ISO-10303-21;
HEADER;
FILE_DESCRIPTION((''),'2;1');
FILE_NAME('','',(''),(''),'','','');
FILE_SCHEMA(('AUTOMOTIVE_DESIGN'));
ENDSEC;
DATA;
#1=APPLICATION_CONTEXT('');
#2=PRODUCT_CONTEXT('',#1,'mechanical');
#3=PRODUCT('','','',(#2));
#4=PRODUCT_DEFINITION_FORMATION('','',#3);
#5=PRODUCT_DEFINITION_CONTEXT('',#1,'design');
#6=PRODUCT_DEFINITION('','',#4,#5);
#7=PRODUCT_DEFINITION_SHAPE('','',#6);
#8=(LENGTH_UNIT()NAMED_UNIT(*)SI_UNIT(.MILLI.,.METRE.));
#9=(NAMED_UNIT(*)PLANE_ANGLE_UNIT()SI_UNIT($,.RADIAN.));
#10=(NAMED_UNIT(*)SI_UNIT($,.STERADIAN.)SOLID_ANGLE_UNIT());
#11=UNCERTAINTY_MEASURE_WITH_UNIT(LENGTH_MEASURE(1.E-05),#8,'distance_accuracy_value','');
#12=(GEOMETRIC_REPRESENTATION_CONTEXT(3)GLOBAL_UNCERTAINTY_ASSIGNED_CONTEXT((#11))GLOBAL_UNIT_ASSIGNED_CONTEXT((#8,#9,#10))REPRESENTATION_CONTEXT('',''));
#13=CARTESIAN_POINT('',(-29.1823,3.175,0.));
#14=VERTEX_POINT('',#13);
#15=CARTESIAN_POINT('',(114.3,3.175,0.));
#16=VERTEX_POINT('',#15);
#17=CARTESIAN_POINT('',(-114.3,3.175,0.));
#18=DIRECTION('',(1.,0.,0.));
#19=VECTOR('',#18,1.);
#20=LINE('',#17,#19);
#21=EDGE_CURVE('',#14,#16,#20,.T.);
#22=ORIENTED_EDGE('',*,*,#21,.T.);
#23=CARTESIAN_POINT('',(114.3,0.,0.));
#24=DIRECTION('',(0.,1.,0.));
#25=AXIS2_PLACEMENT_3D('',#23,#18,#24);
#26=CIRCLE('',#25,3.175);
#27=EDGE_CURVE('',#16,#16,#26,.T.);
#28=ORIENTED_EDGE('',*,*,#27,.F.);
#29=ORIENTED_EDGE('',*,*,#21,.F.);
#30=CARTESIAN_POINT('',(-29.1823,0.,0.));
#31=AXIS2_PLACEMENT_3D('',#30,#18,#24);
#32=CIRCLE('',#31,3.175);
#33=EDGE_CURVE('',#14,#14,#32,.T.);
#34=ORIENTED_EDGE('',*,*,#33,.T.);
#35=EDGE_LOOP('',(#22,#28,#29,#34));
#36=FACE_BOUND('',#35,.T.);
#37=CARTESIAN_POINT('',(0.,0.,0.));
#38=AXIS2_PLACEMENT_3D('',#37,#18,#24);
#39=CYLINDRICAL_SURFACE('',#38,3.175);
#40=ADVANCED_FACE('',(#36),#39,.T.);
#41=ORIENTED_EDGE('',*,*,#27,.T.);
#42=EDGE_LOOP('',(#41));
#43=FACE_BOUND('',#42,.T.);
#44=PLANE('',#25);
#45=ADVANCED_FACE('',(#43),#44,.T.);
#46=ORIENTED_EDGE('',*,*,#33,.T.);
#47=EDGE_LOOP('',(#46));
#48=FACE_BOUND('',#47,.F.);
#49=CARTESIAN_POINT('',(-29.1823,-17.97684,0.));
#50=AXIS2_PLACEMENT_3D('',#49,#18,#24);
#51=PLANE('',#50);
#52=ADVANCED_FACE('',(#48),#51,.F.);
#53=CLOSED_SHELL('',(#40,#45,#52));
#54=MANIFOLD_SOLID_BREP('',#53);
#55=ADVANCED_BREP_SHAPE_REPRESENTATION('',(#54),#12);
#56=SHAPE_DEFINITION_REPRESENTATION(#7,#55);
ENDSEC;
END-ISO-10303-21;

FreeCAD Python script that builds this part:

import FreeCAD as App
import Part
import Sketcher
Q = App.Units.Quantity

doc = App.newDocument("Part")
body = doc.addObject("PartDesign::Body", "Body")

# Sketch on YZ plane
sketch1 = doc.addObject("Sketcher::SketchObject", "Sketch")
body.addObject(sketch1)
sketch1.AttachmentSupport = (doc.YZ_Plane, [""])
sketch1.MapMode = "FlatFace"
sketch1.addGeometry(Part.Circle(App.Vector(0, 0, 0), App.Vector(0, 0, 1), 3.2), False)
sketch1.addConstraint([
    Sketcher.Constraint("Coincident", 0, 3, -1, 1),
    Sketcher.Constraint("Diameter", 0, Q("0.25 in")),
])
pad1 = doc.addObject("PartDesign::Pad", "Pad")
body.addObject(pad1)
pad1.Profile = sketch1
pad1.Length = Q("9 in")
pad1.Midplane = True

# Sketch on XY plane
sketch2 = doc.addObject("Sketcher::SketchObject", "Sketch001")
body.addObject(sketch2)
sketch2.AttachmentSupport = (doc.XY_Plane, [""])
sketch2.MapMode = "FlatFace"
sketch2.addGeometry([
    Part.LineSegment(App.Vector(-121, 23, 0), App.Vector(-121, -18, 0)),
    Part.LineSegment(App.Vector(-121, -18, 0), App.Vector(-29, -18, 0)),
    Part.LineSegment(App.Vector(-29, -18, 0), App.Vector(-29, 23, 0)),
    Part.LineSegment(App.Vector(-29, 23, 0), App.Vector(-121, 23, 0)),
], False)
sketch2.addConstraint([
    Sketcher.Constraint("Coincident", 0, 2, 1, 1),
    Sketcher.Constraint("Coincident", 1, 2, 2, 1),
    Sketcher.Constraint("Coincident", 2, 2, 3, 1),
    Sketcher.Constraint("Coincident", 3, 2, 0, 1),
    Sketcher.Constraint("Vertical", 0),
    Sketcher.Constraint("Horizontal", 1),
    Sketcher.Constraint("Vertical", 2),
    Sketcher.Constraint("Horizontal", 3),
    Sketcher.Constraint("DistanceY", 0, 2, 0, 1, Q("1.6271 in")),
    Sketcher.Constraint("DistanceX", 1, 2, -1, 1, 29.1823),
    Sketcher.Constraint("DistanceY", -1, 1, 2, 2, 23.351499),
    Sketcher.Constraint("DistanceX", 1, 1, 1, 2, 91.892056),
])
pocket1 = doc.addObject("PartDesign::Pocket", "Pocket")
body.addObject(pocket1)
pocket1.Profile = sketch2
pocket1.Length = 25
pocket1.Midplane = True

doc.recompute()
